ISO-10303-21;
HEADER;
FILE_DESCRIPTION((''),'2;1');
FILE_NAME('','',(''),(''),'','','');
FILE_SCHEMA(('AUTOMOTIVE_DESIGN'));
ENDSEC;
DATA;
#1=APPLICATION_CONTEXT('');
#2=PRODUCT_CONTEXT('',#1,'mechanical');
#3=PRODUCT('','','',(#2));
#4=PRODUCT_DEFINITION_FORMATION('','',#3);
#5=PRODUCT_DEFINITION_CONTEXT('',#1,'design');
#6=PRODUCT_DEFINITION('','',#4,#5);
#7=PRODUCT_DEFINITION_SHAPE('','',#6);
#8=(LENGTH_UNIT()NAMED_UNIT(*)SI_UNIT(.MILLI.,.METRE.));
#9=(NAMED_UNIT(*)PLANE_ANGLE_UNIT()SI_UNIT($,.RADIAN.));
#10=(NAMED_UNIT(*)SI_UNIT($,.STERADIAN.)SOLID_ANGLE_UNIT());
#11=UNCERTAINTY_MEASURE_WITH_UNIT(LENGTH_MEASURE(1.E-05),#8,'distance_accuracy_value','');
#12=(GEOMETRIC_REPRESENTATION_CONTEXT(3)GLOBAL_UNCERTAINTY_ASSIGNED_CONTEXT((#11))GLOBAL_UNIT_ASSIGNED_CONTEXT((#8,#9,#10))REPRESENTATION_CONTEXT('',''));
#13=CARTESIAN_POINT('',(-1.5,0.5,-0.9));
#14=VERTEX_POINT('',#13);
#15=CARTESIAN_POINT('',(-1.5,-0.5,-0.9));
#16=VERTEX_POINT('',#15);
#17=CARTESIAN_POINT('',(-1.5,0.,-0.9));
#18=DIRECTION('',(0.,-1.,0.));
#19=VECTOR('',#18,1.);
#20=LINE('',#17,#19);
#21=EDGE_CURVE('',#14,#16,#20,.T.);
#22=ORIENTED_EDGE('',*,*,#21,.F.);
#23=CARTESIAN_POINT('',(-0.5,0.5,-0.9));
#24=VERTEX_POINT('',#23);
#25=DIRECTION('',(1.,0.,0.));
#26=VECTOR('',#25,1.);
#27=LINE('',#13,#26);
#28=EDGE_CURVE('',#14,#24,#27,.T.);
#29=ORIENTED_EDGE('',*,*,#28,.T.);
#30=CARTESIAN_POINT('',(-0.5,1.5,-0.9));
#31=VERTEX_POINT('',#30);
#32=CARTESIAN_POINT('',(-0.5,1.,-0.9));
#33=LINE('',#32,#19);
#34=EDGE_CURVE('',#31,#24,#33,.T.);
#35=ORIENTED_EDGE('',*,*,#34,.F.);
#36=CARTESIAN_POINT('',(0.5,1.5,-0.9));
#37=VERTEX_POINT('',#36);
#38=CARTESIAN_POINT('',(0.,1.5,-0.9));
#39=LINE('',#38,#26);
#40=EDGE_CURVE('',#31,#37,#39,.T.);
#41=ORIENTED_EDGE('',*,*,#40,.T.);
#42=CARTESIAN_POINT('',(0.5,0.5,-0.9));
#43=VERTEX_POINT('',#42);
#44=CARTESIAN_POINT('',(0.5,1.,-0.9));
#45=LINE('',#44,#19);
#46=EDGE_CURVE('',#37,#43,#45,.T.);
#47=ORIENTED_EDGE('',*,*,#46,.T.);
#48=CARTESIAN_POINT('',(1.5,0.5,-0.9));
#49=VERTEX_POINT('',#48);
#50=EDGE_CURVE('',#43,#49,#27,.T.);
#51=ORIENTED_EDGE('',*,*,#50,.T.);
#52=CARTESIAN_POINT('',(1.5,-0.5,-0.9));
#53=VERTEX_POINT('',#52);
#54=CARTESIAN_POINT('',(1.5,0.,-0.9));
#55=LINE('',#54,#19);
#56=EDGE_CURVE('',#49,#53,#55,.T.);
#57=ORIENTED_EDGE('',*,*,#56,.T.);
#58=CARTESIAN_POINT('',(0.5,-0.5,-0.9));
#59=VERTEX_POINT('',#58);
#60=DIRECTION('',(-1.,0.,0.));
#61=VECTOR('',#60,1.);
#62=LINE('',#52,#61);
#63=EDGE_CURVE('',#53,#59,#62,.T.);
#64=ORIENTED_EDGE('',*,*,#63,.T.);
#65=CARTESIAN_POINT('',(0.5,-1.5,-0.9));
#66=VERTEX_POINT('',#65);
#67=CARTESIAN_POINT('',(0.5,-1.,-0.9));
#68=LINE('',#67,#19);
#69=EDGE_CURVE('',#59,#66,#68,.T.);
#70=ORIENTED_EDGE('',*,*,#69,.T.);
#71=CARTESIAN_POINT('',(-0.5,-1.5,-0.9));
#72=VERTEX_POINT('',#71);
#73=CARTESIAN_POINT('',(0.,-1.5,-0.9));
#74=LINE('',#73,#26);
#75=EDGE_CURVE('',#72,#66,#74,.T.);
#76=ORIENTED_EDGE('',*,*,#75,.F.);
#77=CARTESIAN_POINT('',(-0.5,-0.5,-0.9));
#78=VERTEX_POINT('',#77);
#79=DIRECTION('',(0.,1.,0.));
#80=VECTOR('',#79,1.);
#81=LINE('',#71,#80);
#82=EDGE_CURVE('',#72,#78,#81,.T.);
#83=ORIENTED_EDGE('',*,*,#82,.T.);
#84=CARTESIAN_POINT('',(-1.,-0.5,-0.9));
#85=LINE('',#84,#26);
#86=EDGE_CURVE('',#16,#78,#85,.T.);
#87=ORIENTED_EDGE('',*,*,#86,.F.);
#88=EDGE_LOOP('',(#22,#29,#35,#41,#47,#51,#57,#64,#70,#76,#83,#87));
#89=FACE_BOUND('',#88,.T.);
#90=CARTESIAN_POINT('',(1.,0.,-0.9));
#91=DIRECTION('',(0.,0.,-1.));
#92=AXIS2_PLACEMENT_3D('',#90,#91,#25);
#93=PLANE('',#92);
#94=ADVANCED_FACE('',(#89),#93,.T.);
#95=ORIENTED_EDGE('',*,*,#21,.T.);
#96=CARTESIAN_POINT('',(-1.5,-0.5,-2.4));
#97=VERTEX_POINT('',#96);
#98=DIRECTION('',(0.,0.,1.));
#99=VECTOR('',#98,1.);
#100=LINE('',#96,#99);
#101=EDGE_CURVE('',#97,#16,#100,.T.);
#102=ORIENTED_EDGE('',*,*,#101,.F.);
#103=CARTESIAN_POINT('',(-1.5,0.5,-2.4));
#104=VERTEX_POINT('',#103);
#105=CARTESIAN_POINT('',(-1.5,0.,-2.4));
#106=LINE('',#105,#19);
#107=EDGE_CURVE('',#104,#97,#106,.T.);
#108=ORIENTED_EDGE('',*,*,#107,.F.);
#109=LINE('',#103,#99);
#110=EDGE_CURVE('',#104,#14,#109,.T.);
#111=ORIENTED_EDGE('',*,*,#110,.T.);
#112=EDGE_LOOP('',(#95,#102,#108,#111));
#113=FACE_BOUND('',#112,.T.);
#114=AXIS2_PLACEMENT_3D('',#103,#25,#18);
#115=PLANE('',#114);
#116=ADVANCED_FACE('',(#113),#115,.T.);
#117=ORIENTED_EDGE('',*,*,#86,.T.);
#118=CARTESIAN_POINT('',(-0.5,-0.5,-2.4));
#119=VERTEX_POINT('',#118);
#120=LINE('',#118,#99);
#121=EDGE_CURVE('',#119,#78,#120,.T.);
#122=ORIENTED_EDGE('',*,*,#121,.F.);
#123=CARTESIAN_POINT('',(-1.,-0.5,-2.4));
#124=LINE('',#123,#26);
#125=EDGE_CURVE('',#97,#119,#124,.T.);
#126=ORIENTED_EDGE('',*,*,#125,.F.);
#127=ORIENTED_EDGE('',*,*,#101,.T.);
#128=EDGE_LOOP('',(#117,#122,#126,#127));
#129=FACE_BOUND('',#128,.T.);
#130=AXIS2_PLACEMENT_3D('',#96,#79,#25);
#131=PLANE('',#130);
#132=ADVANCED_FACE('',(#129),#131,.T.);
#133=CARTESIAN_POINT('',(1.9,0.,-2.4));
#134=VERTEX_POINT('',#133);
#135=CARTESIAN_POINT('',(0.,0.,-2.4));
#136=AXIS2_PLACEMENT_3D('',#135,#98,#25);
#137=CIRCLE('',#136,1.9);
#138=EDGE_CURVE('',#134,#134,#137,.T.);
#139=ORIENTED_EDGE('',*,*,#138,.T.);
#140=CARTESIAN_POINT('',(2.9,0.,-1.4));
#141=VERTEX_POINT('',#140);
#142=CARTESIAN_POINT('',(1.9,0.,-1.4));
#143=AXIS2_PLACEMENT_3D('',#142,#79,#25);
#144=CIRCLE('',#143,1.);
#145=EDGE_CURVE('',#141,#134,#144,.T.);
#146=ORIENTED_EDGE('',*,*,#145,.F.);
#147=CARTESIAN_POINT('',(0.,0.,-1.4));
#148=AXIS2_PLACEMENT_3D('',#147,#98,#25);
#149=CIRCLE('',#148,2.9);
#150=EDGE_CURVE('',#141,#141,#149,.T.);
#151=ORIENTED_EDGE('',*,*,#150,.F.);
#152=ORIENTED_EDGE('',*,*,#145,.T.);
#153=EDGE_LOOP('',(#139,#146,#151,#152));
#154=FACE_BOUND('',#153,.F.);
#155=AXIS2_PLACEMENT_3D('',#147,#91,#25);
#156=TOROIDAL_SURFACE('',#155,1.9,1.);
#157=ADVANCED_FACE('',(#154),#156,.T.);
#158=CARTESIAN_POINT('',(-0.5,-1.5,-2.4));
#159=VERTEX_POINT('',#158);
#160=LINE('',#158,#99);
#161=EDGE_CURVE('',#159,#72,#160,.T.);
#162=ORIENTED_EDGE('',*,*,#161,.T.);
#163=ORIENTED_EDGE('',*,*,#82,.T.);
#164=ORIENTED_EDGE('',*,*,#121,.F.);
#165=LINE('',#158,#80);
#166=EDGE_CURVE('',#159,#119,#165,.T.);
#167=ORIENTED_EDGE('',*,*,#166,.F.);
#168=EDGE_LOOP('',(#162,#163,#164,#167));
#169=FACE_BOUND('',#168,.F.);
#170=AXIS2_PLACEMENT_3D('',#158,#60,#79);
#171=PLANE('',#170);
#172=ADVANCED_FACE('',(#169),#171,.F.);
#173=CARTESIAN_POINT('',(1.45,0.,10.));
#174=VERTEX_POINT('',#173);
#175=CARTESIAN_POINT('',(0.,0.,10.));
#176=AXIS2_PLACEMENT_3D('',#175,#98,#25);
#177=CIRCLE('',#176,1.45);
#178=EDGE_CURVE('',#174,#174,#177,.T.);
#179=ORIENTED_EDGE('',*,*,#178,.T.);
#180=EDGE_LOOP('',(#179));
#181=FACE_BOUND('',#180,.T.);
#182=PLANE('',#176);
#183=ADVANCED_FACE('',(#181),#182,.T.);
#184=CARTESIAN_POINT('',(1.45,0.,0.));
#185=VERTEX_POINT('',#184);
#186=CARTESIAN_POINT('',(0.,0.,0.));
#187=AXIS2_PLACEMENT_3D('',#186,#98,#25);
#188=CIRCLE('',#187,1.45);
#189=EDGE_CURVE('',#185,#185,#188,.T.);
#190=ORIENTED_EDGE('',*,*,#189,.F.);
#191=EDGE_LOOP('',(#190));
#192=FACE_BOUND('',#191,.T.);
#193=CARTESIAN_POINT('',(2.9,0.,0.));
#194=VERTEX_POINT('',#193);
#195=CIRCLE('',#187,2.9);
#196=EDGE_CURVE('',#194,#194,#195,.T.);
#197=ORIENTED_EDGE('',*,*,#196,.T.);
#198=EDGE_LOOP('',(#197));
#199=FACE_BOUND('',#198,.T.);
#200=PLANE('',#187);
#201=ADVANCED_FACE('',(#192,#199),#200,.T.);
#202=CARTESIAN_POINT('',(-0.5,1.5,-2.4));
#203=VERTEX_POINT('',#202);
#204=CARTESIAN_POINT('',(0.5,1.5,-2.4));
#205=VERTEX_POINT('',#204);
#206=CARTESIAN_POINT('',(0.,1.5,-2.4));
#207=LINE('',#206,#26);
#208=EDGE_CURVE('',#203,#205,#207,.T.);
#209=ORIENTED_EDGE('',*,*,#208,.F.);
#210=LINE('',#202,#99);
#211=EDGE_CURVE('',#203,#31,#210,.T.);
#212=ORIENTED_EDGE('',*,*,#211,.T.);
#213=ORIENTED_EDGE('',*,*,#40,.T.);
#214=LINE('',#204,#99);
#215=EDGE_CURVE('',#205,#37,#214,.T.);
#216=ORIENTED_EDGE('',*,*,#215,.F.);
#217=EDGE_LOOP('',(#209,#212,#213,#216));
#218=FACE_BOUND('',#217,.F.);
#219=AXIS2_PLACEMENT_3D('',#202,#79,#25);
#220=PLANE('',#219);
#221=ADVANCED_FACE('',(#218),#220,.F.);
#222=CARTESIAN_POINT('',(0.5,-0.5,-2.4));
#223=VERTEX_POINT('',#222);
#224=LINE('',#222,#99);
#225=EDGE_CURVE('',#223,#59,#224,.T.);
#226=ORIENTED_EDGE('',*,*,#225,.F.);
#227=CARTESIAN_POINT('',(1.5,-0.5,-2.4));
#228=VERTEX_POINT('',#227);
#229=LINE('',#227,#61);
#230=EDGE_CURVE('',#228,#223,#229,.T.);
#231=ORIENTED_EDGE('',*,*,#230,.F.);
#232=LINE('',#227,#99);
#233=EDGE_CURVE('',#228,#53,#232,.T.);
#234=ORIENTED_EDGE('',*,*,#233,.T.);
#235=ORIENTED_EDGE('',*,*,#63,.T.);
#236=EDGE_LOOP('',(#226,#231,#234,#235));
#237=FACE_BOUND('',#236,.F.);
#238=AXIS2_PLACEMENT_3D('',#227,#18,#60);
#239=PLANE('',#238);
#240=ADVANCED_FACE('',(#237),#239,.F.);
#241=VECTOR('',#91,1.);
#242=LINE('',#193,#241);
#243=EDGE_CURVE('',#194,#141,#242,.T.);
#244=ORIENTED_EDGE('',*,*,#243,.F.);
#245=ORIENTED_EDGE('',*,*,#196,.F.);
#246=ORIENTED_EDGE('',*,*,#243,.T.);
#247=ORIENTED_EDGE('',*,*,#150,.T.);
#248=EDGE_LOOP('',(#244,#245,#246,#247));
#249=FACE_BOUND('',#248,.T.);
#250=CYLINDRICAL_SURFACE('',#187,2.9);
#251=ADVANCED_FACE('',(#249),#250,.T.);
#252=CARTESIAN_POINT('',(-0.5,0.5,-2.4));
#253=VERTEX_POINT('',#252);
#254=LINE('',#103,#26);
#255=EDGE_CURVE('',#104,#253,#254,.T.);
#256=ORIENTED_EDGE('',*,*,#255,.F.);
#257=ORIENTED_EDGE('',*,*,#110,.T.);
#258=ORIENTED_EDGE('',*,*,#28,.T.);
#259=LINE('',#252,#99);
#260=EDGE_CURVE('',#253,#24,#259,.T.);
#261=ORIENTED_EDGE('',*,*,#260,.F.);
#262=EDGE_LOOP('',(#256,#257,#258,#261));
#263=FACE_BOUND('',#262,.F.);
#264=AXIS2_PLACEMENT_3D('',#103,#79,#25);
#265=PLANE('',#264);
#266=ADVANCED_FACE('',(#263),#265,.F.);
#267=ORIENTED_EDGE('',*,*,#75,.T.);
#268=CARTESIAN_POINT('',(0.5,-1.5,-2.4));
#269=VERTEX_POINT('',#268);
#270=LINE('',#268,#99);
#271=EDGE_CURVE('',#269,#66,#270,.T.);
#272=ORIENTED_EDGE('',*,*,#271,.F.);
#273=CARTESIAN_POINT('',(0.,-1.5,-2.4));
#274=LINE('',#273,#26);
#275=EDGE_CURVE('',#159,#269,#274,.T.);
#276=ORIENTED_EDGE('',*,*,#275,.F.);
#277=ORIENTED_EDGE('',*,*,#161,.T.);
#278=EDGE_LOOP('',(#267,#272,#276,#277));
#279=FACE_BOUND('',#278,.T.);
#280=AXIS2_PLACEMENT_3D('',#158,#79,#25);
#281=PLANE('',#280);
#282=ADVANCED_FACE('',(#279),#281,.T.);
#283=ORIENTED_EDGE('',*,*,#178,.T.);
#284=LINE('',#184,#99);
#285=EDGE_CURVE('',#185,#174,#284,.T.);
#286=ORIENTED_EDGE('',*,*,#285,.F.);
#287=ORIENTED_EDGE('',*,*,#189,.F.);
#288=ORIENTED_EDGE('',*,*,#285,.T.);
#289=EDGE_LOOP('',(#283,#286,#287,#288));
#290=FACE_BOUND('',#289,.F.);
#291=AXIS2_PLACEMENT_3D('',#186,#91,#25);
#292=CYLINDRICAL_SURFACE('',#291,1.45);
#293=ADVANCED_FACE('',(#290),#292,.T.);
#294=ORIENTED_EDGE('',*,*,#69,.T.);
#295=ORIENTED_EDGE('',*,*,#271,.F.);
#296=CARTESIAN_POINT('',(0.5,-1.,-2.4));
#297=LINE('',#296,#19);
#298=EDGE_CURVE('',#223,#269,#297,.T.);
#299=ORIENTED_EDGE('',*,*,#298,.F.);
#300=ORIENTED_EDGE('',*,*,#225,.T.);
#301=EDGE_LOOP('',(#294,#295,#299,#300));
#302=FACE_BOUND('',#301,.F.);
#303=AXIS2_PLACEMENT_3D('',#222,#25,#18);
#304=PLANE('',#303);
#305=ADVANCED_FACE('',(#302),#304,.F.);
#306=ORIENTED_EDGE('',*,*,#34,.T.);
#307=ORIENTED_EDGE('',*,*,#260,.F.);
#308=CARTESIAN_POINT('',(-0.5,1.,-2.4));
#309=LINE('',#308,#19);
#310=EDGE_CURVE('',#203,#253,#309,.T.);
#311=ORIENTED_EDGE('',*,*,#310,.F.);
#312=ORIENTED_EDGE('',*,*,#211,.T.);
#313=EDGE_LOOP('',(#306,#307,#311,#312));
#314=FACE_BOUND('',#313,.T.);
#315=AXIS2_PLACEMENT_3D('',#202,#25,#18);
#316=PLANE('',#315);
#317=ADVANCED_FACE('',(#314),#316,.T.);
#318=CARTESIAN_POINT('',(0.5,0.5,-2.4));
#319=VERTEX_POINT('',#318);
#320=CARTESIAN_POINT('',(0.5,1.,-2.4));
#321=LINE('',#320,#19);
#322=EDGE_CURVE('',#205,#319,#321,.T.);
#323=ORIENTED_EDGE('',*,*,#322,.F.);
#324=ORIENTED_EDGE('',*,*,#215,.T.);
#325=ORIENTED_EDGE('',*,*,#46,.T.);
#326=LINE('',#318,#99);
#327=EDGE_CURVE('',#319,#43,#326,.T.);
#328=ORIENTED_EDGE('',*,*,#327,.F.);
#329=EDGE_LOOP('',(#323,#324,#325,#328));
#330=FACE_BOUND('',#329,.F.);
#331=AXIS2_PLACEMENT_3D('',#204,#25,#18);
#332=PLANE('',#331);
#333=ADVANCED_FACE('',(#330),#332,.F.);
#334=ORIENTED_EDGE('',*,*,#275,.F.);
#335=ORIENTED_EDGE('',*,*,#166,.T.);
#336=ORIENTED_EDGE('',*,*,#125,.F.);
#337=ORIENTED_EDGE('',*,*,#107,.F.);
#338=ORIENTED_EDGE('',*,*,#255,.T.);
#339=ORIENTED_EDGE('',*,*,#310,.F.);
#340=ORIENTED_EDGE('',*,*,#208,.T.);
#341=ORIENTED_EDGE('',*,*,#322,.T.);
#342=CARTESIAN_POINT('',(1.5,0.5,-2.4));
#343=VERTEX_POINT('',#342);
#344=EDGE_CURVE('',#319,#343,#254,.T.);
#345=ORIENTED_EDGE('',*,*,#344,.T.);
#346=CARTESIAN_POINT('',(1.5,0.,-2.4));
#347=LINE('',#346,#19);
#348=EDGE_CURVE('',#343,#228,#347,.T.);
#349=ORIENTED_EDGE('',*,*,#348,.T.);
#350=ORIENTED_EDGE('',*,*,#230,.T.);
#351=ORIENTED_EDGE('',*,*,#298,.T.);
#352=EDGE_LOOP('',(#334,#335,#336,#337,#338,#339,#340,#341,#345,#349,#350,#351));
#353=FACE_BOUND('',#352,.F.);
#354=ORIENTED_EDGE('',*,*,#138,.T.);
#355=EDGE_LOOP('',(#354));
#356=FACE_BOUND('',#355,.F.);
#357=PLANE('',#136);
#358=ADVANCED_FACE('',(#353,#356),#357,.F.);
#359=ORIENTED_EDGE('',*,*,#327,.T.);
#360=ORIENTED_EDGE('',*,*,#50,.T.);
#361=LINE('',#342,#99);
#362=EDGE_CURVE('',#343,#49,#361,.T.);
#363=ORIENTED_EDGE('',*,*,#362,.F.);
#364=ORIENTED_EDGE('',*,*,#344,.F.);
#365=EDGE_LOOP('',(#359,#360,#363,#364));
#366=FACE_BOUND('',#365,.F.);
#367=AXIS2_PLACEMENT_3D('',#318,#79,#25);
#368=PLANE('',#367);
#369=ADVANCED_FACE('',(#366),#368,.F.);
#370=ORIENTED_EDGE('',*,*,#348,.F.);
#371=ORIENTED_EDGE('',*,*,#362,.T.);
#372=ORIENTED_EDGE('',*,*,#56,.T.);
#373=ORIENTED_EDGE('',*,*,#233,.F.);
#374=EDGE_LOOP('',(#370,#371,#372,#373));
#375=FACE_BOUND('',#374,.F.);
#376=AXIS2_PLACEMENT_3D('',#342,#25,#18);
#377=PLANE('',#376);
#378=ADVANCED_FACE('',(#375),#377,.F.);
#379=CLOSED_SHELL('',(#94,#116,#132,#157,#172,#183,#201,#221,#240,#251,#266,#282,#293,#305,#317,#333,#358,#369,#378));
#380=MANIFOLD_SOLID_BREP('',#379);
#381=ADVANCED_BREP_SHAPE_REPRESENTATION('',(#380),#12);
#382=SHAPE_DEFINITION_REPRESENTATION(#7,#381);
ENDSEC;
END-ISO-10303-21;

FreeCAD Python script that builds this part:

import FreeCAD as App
import Part
import Sketcher

V = App.Vector


def edges_at(feature, points):
    """Names of the edges that pass closest to the given points."""
    edges = feature.Shape.Edges
    near = lambda p: min(range(len(edges)), key=lambda i: edges[i].distToShape(Part.Vertex(*p))[0])
    return sorted({f"Edge{near(p) + 1}" for p in points})


def add_polygon(sketch, points):
    """Adds a closed chain of lines whose ends are joined by coincident constraints."""
    first, n = sketch.GeometryCount, len(points)
    for a, b in zip(points, points[1:] + points[:1]):
        sketch.addGeometry(Part.LineSegment(App.Vector(*a, 0), App.Vector(*b, 0)), False)
    for i in range(n):
        sketch.addConstraint(Sketcher.Constraint("Coincident", first + i, 2, first + (i + 1) % n, 1))

doc = App.newDocument("Part")
body = doc.addObject("PartDesign::Body", "Body")

sketch1 = body.newObject("Sketcher::SketchObject", "Sketch")
sketch1.AttachmentSupport = (doc.getObject("XY_Plane"), [""])
sketch1.MapMode = "FlatFace"
sketch1.addGeometry(Part.Circle(V(0, 0, 0), V(0, 0, 1), 1.45), False)
sketch1.addConstraint([
    Sketcher.Constraint("Coincident", 0, 3, -1, 1),
    Sketcher.Constraint("Diameter", 0, 2.9),
])
pad1 = body.newObject("PartDesign::Pad", "Pad")
pad1.Profile = sketch1
pad1.Length = 10

sketch2 = body.newObject("Sketcher::SketchObject", "Sketch001")
sketch2.AttachmentSupport = (doc.getObject("XY_Plane"), [""])
sketch2.MapMode = "FlatFace"
sketch2.addGeometry(Part.Circle(V(0, 0, 0), V(0, 0, 1), 2.9), False)
sketch2.addConstraint([
    Sketcher.Constraint("Coincident", 0, 3, -1, 1),
    Sketcher.Constraint("Diameter", 0, 5.8),
])
pad2 = body.newObject("PartDesign::Pad", "Pad001")
pad2.Profile = sketch2
pad2.Length = 2.4
pad2.Reversed = True
doc.recompute()

fillet = body.newObject("PartDesign::Fillet", "Fillet")
fillet.Base = (pad2, edges_at(pad2, [(-2.9, 0, -2.4)]))
fillet.Radius = 1

sketch3 = body.newObject("Sketcher::SketchObject", "Sketch002")
sketch3.AttachmentSupport = (doc.getObject("XY_Plane"), [""])
sketch3.MapMode = "FlatFace"
sketch3.AttachmentOffset = App.Placement(V(0, 0, -2.4), App.Rotation())
add_polygon(sketch3, [(1.5, 0.5), (1.5, -0.5), (0.5, -0.5), (0.5, -1.5), (-0.5, -1.5), (-0.5, -0.5), (-1.5, -0.5), (-1.5, 0.5), (-0.5, 0.5), (-0.5, 1.5), (0.5, 1.5), (0.5, 0.5)])
sketch3.addConstraint([
    Sketcher.Constraint("Vertical", 0),
    Sketcher.Constraint("Horizontal", 1),
    Sketcher.Constraint("Vertical", 2),
    Sketcher.Constraint("Horizontal", 3),
    Sketcher.Constraint("Vertical", 4),
    Sketcher.Constraint("Horizontal", 5),
    Sketcher.Constraint("Vertical", 6),
    Sketcher.Constraint("Horizontal", 7),
    Sketcher.Constraint("Vertical", 8),
    Sketcher.Constraint("Horizontal", 9),
    Sketcher.Constraint("Vertical", 10),
    Sketcher.Constraint("Horizontal", 11),
    Sketcher.Constraint("Symmetric", 0, 2, 6, 2, -1, 1),
    Sketcher.Constraint("Symmetric", 2, 2, 8, 2, -1, 1),
    Sketcher.Constraint("Symmetric", 4, 2, 10, 2, -1, 1),
    Sketcher.Constraint("Symmetric", 1, 2, 4, 2, -2),
    Sketcher.Constraint("Equal", 1, 3),
    Sketcher.Constraint("Equal", 11, 0),
    Sketcher.Constraint("Equal", 0, 2),
    Sketcher.Constraint("DistanceX", 1, 2, 1, 1, 1.0),
])
pocket1 = body.newObject("PartDesign::Pocket", "Pocket")
pocket1.Profile = sketch3
pocket1.Length = 1.5
pocket1.Reversed = True

doc.recompute()
